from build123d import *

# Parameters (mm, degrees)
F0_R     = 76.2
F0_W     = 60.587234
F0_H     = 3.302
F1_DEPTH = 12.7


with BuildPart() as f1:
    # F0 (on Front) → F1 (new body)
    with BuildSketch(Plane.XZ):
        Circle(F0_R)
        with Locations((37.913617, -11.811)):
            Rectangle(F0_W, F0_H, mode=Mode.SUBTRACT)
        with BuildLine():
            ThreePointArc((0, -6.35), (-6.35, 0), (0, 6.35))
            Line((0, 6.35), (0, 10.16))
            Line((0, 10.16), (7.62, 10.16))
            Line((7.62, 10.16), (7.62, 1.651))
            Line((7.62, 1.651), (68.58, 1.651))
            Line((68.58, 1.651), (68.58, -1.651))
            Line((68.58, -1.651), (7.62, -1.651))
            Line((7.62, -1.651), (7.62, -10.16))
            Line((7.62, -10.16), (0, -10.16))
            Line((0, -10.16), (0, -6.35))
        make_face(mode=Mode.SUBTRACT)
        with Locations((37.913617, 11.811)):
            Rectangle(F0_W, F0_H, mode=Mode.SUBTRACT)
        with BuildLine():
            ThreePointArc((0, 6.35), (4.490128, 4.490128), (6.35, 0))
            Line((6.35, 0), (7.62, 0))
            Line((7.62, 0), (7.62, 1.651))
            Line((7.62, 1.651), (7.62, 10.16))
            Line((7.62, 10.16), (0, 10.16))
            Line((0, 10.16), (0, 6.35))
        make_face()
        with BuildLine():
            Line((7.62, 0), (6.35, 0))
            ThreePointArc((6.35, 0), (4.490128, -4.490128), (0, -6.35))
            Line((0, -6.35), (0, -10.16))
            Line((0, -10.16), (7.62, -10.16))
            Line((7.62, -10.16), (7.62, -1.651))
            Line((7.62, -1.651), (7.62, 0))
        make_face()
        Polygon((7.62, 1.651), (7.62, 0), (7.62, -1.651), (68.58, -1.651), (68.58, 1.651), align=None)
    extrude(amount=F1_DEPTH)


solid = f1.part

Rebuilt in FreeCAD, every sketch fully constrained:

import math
import FreeCAD as App
import Part
import Sketcher
Q = App.Units.Quantity


def add_polygon(sketch, points):
    """Adds a closed chain of lines whose ends are joined by coincident constraints."""
    first, n = sketch.GeometryCount, len(points)
    for a, b in zip(points, points[1:] + points[:1]):
        sketch.addGeometry(Part.LineSegment(App.Vector(*a, 0), App.Vector(*b, 0)), False)
    for i in range(n):
        sketch.addConstraint(Sketcher.Constraint("Coincident", first + i, 2, first + (i + 1) % n, 1))

doc = App.newDocument("Part")
body = doc.addObject("PartDesign::Body", "Body")

sketch1 = body.newObject("Sketcher::SketchObject", "Sketch")
sketch1.AttachmentSupport = (doc.getObject("XZ_Plane"), [""])
sketch1.MapMode = "FlatFace"
sketch1.addGeometry(Part.Circle(App.Vector(0, 0, 0), App.Vector(0, 0, 1), 76.2), False)
add_polygon(sketch1, [(7.6, -13.5), (7.6, -10.2), (68.2, -10.2), (68.2, -13.5)])
sketch1.addGeometry(Part.ArcOfCircle(Part.Circle(App.Vector(0, 0, 0), App.Vector(0, 0, 1), 6.4), math.radians(0), math.radians(90)), False)
sketch1.addGeometry(Part.ArcOfCircle(Part.Circle(App.Vector(0, 0, 0), App.Vector(0, 0, 1), 6.4), math.radians(-90), math.radians(0)), False)
sketch1.addGeometry(Part.ArcOfCircle(Part.Circle(App.Vector(0, 0, 0), App.Vector(0, 0, 1), 6.3), math.radians(90), math.radians(270)), False)
add_polygon(sketch1, [(68.2, 10.2), (7.6, 10.2), (7.6, 13.5), (68.2, 13.5)])
sketch1.addConstraint([
    Sketcher.Constraint("Tangent", 5, 1, 6, 2),
    Sketcher.Constraint("Tangent", 6, 1, 7, 2),
    Sketcher.Constraint("Tangent", 7, 1, 5, 2),
    Sketcher.Constraint("Vertical", 1),
    Sketcher.Constraint("Horizontal", 2),
    Sketcher.Constraint("Vertical", 3),
    Sketcher.Constraint("Horizontal", 4),
    Sketcher.Constraint("Horizontal", 8),
    Sketcher.Constraint("Vertical", 9),
    Sketcher.Constraint("Horizontal", 10),
    Sketcher.Constraint("Vertical", 11),
    Sketcher.Constraint("Coincident", 0, 3, -1, 1),
    Sketcher.Constraint("Coincident", 5, 3, -1, 1),
    Sketcher.Constraint("Symmetric", 1, 2, 8, 2, -1),
    Sketcher.Constraint("Symmetric", 3, 2, 10, 2, -1),
    Sketcher.Constraint("PointOnObject", 5, 1, -1),
    Sketcher.Constraint("PointOnObject", 6, 1, -2),
    Sketcher.Constraint("PointOnObject", 7, 1, -2),
    Sketcher.Constraint("Diameter", 0, Q("6 in")),
    Sketcher.Constraint("Radius", 5, Q("0.25 in")),
    Sketcher.Constraint("DistanceY", 1, 1, 1, 2, Q("0.13 in")),
    Sketcher.Constraint("DistanceX", -1, 1, 1, 2, Q("0.3 in")),
    Sketcher.Constraint("DistanceY", 1, 2, -1, 1, Q("0.4 in")),
    Sketcher.Constraint("DistanceX", 2, 1, 2, 2, Q("60.587234 mm")),
])
pad1 = body.newObject("PartDesign::Pad", "Pad")
pad1.Profile = sketch1
pad1.Length = Q("0.5 in")

doc.recompute()
